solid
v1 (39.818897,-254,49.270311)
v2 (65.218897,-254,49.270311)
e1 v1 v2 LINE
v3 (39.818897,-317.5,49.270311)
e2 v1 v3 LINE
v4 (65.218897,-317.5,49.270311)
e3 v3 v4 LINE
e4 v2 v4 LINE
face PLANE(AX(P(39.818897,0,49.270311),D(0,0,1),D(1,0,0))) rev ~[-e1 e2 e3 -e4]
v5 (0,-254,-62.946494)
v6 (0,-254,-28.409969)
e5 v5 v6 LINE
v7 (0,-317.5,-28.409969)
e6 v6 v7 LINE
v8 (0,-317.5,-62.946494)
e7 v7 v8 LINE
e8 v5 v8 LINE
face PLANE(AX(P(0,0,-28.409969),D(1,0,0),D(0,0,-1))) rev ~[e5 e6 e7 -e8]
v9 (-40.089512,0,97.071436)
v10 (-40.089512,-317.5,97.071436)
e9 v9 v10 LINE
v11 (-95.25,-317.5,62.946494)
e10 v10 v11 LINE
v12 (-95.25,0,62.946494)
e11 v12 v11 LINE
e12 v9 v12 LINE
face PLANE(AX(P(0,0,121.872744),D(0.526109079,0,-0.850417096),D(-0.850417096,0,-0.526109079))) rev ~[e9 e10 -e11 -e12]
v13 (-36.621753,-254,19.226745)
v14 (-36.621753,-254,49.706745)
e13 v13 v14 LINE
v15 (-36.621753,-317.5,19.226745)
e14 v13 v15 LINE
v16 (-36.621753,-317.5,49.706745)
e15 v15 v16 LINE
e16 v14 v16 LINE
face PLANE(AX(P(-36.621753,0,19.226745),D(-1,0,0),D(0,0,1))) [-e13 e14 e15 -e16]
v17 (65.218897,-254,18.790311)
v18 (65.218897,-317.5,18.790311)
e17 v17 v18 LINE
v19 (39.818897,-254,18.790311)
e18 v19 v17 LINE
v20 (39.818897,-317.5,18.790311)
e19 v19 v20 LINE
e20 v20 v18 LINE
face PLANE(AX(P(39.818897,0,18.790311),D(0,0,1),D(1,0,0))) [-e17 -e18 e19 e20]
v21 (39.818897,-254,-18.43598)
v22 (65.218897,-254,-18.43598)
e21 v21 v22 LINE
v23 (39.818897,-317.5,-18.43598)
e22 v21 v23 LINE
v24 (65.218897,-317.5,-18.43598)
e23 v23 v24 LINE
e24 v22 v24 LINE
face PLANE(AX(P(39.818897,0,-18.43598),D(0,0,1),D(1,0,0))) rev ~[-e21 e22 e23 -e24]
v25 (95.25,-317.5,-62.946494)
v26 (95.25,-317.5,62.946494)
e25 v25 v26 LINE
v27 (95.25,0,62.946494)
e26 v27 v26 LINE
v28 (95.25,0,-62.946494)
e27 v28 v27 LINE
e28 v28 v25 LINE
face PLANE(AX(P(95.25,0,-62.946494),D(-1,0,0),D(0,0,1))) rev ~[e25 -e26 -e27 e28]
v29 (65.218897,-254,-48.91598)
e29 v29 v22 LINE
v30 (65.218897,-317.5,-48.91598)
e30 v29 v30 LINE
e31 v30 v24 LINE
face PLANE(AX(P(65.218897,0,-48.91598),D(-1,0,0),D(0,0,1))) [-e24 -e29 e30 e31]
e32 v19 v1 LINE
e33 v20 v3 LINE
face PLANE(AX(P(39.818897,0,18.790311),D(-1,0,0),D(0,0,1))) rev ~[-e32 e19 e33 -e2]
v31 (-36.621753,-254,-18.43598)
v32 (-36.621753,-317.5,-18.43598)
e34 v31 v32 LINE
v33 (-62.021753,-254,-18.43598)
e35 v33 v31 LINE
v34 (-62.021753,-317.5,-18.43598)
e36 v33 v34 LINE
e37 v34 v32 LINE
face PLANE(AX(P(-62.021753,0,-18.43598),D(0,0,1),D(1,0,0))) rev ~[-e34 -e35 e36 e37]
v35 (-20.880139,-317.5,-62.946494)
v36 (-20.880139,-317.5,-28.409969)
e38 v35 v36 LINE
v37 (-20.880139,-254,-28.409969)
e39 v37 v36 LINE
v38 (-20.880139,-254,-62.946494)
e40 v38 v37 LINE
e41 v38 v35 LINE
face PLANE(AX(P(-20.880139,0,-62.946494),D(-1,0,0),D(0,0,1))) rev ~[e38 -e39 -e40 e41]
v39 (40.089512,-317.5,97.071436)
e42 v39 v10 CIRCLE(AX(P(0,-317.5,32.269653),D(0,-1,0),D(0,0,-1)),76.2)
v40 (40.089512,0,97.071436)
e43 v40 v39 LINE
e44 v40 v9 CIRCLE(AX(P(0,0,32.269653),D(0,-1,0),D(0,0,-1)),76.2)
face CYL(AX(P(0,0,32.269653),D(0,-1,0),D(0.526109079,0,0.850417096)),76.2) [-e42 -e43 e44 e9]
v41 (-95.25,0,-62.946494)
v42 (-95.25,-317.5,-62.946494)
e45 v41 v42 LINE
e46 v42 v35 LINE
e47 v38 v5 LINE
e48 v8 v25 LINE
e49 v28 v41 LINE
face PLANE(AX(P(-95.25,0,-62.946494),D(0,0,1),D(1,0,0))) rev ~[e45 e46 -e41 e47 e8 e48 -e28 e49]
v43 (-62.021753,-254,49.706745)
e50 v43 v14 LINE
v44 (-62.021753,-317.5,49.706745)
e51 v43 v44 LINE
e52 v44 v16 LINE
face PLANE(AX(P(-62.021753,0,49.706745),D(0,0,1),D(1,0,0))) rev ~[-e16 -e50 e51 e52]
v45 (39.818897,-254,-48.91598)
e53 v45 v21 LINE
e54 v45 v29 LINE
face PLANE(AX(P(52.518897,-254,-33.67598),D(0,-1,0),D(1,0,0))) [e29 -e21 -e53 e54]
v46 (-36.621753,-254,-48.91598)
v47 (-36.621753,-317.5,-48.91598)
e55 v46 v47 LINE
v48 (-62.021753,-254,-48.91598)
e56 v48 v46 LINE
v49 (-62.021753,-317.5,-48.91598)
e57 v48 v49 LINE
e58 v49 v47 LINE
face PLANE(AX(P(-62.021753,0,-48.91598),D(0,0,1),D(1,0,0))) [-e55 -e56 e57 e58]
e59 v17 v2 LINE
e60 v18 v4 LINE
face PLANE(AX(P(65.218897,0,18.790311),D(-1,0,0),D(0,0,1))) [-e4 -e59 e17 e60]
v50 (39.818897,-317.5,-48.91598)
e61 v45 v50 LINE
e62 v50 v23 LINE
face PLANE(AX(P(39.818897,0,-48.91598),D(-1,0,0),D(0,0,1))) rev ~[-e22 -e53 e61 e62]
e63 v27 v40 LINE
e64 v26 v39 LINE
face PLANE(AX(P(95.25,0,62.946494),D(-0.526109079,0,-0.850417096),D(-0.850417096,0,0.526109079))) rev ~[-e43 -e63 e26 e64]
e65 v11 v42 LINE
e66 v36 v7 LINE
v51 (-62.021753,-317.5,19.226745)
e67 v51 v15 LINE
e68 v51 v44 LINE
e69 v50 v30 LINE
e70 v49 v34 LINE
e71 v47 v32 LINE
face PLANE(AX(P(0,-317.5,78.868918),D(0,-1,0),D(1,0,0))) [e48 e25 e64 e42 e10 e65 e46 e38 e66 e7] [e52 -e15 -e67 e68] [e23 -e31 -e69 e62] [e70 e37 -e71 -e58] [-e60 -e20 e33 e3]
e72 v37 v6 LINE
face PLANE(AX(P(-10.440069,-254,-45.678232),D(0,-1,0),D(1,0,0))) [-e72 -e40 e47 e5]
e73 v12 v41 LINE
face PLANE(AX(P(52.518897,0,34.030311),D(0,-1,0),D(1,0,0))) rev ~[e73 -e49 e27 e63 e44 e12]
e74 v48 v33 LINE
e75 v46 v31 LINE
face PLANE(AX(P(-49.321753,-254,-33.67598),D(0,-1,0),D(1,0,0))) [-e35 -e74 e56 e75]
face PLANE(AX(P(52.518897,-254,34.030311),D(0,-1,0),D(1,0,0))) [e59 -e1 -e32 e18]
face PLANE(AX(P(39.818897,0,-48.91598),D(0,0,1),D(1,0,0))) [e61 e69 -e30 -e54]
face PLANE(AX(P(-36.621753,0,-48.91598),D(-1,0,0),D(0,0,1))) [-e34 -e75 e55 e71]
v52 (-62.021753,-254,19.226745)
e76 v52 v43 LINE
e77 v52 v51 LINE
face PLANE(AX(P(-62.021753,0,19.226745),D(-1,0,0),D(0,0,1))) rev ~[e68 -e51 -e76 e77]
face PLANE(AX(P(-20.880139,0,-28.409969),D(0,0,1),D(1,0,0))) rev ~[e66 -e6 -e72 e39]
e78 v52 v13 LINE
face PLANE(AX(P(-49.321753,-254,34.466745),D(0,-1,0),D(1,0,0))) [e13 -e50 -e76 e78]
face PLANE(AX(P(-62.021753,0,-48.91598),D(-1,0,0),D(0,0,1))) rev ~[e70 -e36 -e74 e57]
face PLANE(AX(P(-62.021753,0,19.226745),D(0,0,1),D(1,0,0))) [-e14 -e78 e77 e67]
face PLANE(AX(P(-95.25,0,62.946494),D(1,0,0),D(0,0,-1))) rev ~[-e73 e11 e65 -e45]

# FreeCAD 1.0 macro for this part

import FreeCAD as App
import Part
import Sketcher

V = App.Vector
Q = App.Units.Quantity


def edges_at(feature, points):
    """Names of the edges that pass closest to the given points."""
    edges = feature.Shape.Edges
    near = lambda p: min(range(len(edges)), key=lambda i: edges[i].distToShape(Part.Vertex(*p))[0])
    return sorted({f"Edge{near(p) + 1}" for p in points})


def add_polygon(sketch, points):
    """Adds a closed chain of lines whose ends are joined by coincident constraints."""
    first, n = sketch.GeometryCount, len(points)
    for a, b in zip(points, points[1:] + points[:1]):
        sketch.addGeometry(Part.LineSegment(App.Vector(*a, 0), App.Vector(*b, 0)), False)
    for i in range(n):
        sketch.addConstraint(Sketcher.Constraint("Coincident", first + i, 2, first + (i + 1) % n, 1))

doc = App.newDocument("Part")
body = doc.addObject("PartDesign::Body", "Body")

sketch1 = doc.addObject("Sketcher::SketchObject", "Sketch")
body.addObject(sketch1)
sketch1.AttachmentSupport = (doc.XZ_Plane, [""])
sketch1.MapMode = "FlatFace"
add_polygon(sketch1, [(0, 122), (-95, 63), (-95, -63), (-21, -63), (-21, -28), (0, -28), (0, -63), (95, -63), (95, 63)])
add_polygon(sketch1, [(-37, -49), (-62, -49), (-62, -18), (-37, -18)])
add_polygon(sketch1, [(65, -49), (40, -49), (40, -18), (65, -18)])
add_polygon(sketch1, [(-37, 19), (-62, 19), (-62, 50), (-37, 50)])
add_polygon(sketch1, [(65, 19), (40, 19), (40, 49), (65, 49)])
sketch1.addConstraint([
    Sketcher.Constraint("Vertical", 1),
    Sketcher.Constraint("Horizontal", 2),
    Sketcher.Constraint("Vertical", 3),
    Sketcher.Constraint("Horizontal", 4),
    Sketcher.Constraint("Vertical", 5),
    Sketcher.Constraint("Horizontal", 6),
    Sketcher.Constraint("Vertical", 7),
    Sketcher.Constraint("Horizontal", 9),
    Sketcher.Constraint("Vertical", 10),
    Sketcher.Constraint("Horizontal", 11),
    Sketcher.Constraint("Vertical", 12),
    Sketcher.Constraint("Horizontal", 13),
    Sketcher.Constraint("Vertical", 14),
    Sketcher.Constraint("Horizontal", 15),
    Sketcher.Constraint("Vertical", 16),
    Sketcher.Constraint("Horizontal", 17),
    Sketcher.Constraint("Vertical", 18),
    Sketcher.Constraint("Horizontal", 19),
    Sketcher.Constraint("Vertical", 20),
    Sketcher.Constraint("Horizontal", 21),
    Sketcher.Constraint("Vertical", 22),
    Sketcher.Constraint("Horizontal", 23),
    Sketcher.Constraint("Vertical", 24),
    Sketcher.Constraint("Symmetric", 0, 2, 6, 2, -1, 1),
    Sketcher.Constraint("PointOnObject", 4, 2, -2),
    Sketcher.Constraint("PointOnObject", 8, 2, -2),
    Sketcher.Constraint("Horizontal", 2, 2, 5, 2),
    Sketcher.Constraint("Horizontal", 0, 2, 7, 2),
    Sketcher.Constraint("Horizontal", 12, 2, 13, 2),
    Sketcher.Constraint("Horizontal", 11, 2, 14, 2),
    Sketcher.Constraint("Vertical", 10, 2, 17, 2),
    Sketcher.Constraint("Vertical", 12, 2, 19, 2),
    Sketcher.Constraint("Vertical", 14, 2, 21, 2),
    Sketcher.Constraint("Vertical", 16, 2, 23, 2),
    Sketcher.Constraint("Equal", 11, 13),
    Sketcher.Constraint("Equal", 16, 18),
    Sketcher.Constraint("Equal", 20, 22),
    Sketcher.Constraint("DistanceX", 9, 2, 9, 1, Q("1 in")),
    Sketcher.Constraint("DistanceY", 10, 1, 10, 2, Q("1.2 in")),
    Sketcher.Constraint("DistanceX", 6, 1, 6, 2, Q("3.75 in")),
    Sketcher.Constraint("DistanceX", 2, 1, 2, 2, 74.369861),
    Sketcher.Constraint("DistanceY", 1, 2, 1, 1, 125.892988),
    Sketcher.Constraint("DistanceY", 3, 1, 3, 2, 34.536525),
    Sketcher.Constraint("DistanceY", 9, 2, -1, 1, 48.91598),
    Sketcher.Constraint("DistanceY", -1, 1, 21, 2, 18.790311),
    Sketcher.Constraint("DistanceY", 0, 2, 8, 2, 58.926249),
    Sketcher.Constraint("DistanceY", 17, 2, 0, 2, 43.719749),
    Sketcher.Constraint("DistanceX", 19, 2, 22, 2, 76.44065),
    Sketcher.Constraint("DistanceX", 9, 2, -1, 1, 62.021753),
])
pad1 = doc.addObject("PartDesign::Pad", "Pad")
body.addObject(pad1)
pad1.Profile = sketch1
pad1.Length = Q("12.5 in")

sketch2 = doc.addObject("Sketcher::SketchObject", "Sketch001")
body.addObject(sketch2)
sketch2.AttachmentSupport = (doc.XZ_Plane, [""])
sketch2.MapMode = "FlatFace"
add_polygon(sketch2, [(40, 49), (40, 19), (65, 19), (65, 49)])
add_polygon(sketch2, [(-62, 50), (-62, 19), (-37, 19), (-37, 50)])
add_polygon(sketch2, [(40, -18), (40, -49), (65, -49), (65, -18)])
add_polygon(sketch2, [(-62, -18), (-62, -49), (-37, -49), (-37, -18)])
add_polygon(sketch2, [(-21, -28), (-21, -63), (0, -63), (0, -28)])
sketch2.addConstraint([
    Sketcher.Constraint("Vertical", 0),
    Sketcher.Constraint("Horizontal", 1),
    Sketcher.Constraint("Vertical", 2),
    Sketcher.Constraint("Horizontal", 3),
    Sketcher.Constraint("Vertical", 4),
    Sketcher.Constraint("Horizontal", 5),
    Sketcher.Constraint("Vertical", 6),
    Sketcher.Constraint("Horizontal", 7),
    Sketcher.Constraint("Vertical", 8),
    Sketcher.Constraint("Horizontal", 9),
    Sketcher.Constraint("Vertical", 10),
    Sketcher.Constraint("Horizontal", 11),
    Sketcher.Constraint("Vertical", 12),
    Sketcher.Constraint("Horizontal", 13),
    Sketcher.Constraint("Vertical", 14),
    Sketcher.Constraint("Horizontal", 15),
    Sketcher.Constraint("Vertical", 16),
    Sketcher.Constraint("Horizontal", 17),
    Sketcher.Constraint("Vertical", 18),
    Sketcher.Constraint("Horizontal", 19),
    Sketcher.Constraint("PointOnObject", 17, 2, -2),
    Sketcher.Constraint("Horizontal", 9, 2, 12, 2),
    Sketcher.Constraint("Horizontal", 11, 2, 14, 2),
    Sketcher.Constraint("Vertical", 3, 2, 8, 2),
    Sketcher.Constraint("Vertical", 2, 2, 9, 2),
    Sketcher.Constraint("Vertical", 7, 2, 12, 2),
    Sketcher.Constraint("Vertical", 6, 2, 13, 2),
    Sketcher.Constraint("Equal", 3, 5),
    Sketcher.Constraint("Equal", 2, 4),
    Sketcher.Constraint("Equal", 6, 8),
    Sketcher.Constraint("DistanceX", 1, 1, 1, 2, Q("1 in")),
    Sketcher.Constraint("DistanceY", 0, 2, 0, 1, Q("1.2 in")),
    Sketcher.Constraint("DistanceX", 17, 1, 17, 2, 20.880139),
    Sketcher.Constraint("DistanceY", 16, 2, 16, 1, 34.536525),
    Sketcher.Constraint("DistanceY", -1, 1, 0, 2, 18.790311),
    Sketcher.Constraint("DistanceY", 8, 2, -1, 1, 48.91598),
    Sketcher.Constraint("DistanceY", 18, 2, -1, 1, 28.409969),
    Sketcher.Constraint("DistanceX", 4, 2, 0, 2, 101.84065),
    Sketcher.Constraint("DistanceX", -1, 1, 0, 2, 39.818897),
    Sketcher.Constraint("DistanceY", -1, 1, 4, 2, 19.226745),
])
pad2 = doc.addObject("PartDesign::Pad", "Pad001")
body.addObject(pad2)
pad2.Profile = sketch2
pad2.Length = Q("10 in")
doc.recompute()

fillet = doc.addObject("PartDesign::Fillet", "Fillet")
body.addObject(fillet)
fillet.Base = (pad2, edges_at(pad2, [(0, -158.75, 121.873)]))
fillet.Radius = Q("3 in")

doc.recompute()
